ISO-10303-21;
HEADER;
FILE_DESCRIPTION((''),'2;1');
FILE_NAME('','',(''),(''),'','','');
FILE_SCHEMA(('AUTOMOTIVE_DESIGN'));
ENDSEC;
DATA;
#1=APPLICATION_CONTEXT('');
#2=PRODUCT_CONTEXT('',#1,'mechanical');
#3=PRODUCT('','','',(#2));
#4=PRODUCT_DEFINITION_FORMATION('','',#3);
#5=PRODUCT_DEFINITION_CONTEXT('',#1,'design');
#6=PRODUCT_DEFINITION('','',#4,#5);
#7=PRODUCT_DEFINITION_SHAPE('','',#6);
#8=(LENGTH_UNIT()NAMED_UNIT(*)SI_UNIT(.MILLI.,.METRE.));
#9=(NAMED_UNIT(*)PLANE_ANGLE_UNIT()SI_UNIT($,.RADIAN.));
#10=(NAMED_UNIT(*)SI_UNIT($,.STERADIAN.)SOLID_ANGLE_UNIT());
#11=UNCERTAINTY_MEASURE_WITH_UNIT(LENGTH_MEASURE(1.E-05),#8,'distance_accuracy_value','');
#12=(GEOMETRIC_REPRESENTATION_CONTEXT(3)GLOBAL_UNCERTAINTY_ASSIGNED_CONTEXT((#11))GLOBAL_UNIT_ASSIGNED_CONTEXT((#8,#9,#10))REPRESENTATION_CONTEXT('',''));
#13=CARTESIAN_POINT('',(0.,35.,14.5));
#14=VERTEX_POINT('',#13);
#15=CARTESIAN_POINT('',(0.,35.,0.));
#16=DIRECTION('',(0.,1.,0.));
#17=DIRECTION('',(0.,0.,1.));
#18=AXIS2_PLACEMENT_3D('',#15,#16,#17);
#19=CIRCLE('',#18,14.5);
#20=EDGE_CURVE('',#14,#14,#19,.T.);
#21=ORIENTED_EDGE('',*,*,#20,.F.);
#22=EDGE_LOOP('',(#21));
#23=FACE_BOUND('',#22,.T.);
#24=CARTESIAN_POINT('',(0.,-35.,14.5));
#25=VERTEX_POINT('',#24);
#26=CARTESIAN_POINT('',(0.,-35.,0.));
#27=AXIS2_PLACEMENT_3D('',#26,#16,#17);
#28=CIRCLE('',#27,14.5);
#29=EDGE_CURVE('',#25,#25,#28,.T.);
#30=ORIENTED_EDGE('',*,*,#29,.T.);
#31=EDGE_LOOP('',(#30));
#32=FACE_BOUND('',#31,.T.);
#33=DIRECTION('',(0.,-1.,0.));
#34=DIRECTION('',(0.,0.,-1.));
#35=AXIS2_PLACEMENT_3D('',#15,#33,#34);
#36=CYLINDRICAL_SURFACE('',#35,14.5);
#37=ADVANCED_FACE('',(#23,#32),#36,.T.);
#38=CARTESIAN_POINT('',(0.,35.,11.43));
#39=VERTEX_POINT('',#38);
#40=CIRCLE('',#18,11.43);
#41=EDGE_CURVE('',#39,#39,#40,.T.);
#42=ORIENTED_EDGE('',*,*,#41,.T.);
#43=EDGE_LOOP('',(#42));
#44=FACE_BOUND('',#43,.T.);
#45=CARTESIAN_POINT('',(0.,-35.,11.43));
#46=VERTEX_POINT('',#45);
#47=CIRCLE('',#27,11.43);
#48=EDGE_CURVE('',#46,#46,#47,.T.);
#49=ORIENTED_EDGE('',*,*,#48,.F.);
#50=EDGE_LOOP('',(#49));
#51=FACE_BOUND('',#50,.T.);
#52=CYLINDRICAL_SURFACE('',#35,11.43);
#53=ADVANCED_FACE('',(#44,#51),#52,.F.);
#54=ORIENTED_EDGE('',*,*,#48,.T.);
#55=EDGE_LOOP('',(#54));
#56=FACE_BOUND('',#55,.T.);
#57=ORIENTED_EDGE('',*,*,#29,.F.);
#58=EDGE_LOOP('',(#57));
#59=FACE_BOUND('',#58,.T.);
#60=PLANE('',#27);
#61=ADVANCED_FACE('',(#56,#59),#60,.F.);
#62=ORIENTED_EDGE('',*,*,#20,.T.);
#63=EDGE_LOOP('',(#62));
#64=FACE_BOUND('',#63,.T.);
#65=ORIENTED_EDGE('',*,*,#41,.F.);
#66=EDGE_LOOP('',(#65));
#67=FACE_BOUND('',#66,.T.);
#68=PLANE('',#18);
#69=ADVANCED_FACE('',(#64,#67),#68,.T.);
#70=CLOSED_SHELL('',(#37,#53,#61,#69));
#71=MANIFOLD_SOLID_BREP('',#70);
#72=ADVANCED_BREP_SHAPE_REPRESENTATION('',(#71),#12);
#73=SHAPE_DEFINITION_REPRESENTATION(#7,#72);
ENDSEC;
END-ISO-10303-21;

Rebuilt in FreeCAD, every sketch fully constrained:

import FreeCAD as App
import Part
import Sketcher
from FreeCAD import Vector

doc = App.newDocument("Part")
params = doc.addObject("Spreadsheet::Sheet", "Params")
for row, (alias, value) in enumerate([
    ("sketch1_diameter", "29 mm"),
    ("sketch1_diameter2", "22.86 mm"),
    ("pad1_length", "70 mm"),
], start=1):
    params.set(f"A{row}", alias)
    params.set(f"B{row}", "=" + value)
    params.setAlias(f"B{row}", alias)

body = doc.addObject("PartDesign::Body", "Body")

sketch1 = body.newObject("Sketcher::SketchObject", "Sketch")
sketch1.AttachmentSupport = (doc.getObject("XZ_Plane"), [""])
sketch1.MapMode = "FlatFace"
sketch1.addGeometry(Part.Circle(Vector(0, 0, 0), Vector(0, 0, 1), 14.5), False)
sketch1.addGeometry(Part.Circle(Vector(0, 0, 0), Vector(0, 0, 1), 11.43), False)
sketch1.addConstraint(Sketcher.Constraint("Coincident", 0, 3, -1, 1))
sketch1.addConstraint(Sketcher.Constraint("Coincident", 1, 3, -1, 1))
sketch1.addConstraint(Sketcher.Constraint("Diameter", 0, 29.0))
sketch1.addConstraint(Sketcher.Constraint("Diameter", 1, 22.86))
sketch1.setExpression("Constraints[2]", "Params.sketch1_diameter")
sketch1.setExpression("Constraints[3]", "Params.sketch1_diameter2")
pad1 = body.newObject("PartDesign::Pad", "Pad")
pad1.Profile = sketch1
pad1.setExpression("Length", "Params.pad1_length")
pad1.Midplane = True

doc.recompute()
